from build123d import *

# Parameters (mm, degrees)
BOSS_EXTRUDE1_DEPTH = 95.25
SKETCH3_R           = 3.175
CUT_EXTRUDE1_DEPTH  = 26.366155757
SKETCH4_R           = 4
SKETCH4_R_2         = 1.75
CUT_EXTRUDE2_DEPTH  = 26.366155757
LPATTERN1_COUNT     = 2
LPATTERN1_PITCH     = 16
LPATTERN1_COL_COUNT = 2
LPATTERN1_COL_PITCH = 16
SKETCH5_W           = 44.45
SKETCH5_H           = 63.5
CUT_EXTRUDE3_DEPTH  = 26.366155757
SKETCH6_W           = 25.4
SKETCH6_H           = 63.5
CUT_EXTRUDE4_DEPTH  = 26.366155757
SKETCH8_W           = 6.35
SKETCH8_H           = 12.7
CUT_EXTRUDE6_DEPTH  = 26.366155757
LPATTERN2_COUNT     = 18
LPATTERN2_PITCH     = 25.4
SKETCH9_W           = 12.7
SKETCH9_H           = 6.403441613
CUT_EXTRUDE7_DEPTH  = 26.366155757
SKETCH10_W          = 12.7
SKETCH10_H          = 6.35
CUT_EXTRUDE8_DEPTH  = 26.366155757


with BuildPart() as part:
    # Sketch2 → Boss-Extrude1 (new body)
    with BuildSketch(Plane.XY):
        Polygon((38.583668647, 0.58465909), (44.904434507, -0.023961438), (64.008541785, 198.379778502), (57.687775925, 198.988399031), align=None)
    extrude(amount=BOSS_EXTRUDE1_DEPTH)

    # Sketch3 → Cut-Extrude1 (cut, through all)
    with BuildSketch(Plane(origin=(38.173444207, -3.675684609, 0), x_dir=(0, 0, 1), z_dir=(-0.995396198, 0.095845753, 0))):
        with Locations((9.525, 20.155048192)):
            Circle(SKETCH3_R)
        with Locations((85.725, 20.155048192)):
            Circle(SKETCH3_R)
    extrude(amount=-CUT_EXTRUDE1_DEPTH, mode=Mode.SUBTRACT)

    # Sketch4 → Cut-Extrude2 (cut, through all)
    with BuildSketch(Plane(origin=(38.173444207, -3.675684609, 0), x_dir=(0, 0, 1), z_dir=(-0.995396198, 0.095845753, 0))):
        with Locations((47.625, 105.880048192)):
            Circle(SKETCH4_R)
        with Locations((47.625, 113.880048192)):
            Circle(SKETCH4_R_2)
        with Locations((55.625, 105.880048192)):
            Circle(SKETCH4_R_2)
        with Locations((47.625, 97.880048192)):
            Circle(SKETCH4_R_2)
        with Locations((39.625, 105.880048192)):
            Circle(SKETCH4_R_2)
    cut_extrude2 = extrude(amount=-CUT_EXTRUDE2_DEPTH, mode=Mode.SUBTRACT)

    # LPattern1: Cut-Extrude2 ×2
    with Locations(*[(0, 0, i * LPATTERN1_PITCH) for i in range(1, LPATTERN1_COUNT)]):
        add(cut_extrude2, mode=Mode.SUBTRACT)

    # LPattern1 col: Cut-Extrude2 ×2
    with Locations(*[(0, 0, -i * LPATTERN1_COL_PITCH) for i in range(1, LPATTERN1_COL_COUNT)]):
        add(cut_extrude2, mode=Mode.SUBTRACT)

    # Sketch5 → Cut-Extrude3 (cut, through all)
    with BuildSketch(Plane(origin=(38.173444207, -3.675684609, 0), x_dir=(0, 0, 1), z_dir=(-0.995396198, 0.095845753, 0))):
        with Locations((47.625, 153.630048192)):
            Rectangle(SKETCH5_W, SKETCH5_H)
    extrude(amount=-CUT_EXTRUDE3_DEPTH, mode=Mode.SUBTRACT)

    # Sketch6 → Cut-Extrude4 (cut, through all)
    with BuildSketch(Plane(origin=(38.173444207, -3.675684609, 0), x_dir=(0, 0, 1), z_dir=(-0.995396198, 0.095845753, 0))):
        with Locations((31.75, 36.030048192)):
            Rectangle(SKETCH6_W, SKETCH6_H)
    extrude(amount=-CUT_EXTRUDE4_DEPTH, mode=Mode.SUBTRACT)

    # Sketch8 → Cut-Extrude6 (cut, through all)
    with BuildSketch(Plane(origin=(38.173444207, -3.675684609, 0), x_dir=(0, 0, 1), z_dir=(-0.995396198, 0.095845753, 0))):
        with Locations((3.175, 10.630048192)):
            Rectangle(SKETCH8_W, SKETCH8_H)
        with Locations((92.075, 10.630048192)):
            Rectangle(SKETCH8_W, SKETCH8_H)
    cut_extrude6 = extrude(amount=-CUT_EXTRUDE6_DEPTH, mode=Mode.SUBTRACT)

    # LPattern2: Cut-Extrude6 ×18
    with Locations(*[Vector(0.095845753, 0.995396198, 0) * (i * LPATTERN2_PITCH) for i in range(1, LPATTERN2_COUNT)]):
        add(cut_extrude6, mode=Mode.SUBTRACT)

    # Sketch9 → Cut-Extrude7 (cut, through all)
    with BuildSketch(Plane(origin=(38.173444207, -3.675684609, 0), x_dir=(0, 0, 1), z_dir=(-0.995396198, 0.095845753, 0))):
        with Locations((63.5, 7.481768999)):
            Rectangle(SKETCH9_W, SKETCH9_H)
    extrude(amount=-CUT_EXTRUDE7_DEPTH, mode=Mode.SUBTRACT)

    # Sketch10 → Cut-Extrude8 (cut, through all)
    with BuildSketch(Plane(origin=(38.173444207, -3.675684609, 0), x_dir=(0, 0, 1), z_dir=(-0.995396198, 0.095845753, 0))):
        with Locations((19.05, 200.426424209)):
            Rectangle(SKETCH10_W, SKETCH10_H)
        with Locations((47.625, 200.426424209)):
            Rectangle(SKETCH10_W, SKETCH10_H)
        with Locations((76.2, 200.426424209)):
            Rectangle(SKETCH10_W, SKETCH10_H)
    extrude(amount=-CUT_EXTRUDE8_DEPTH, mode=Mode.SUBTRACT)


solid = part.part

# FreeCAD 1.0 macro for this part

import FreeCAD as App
import Part
import Sketcher
Q = App.Units.Quantity


def add_polygon(sketch, points):
    """Adds a closed chain of lines whose ends are joined by coincident constraints."""
    first, n = sketch.GeometryCount, len(points)
    for a, b in zip(points, points[1:] + points[:1]):
        sketch.addGeometry(Part.LineSegment(App.Vector(*a, 0), App.Vector(*b, 0)), False)
    for i in range(n):
        sketch.addConstraint(Sketcher.Constraint("Coincident", first + i, 2, first + (i + 1) % n, 1))

doc = App.newDocument("Part")
body = doc.addObject("PartDesign::Body", "Body")

# Sketch on XY plane
sketch1 = doc.addObject("Sketcher::SketchObject", "Sketch")
body.addObject(sketch1)
sketch1.AttachmentSupport = (doc.XY_Plane, [""])
sketch1.MapMode = "FlatFace"
add_polygon(sketch1, [(38.583669, 0.584659), (44.904435, -0.023961), (64.008542, 198.379779), (57.687776, 198.988399)])  # lines 0-3
sketch1.addConstraint([
    Sketcher.Constraint("Perpendicular", 0, 1),
    Sketcher.Constraint("Perpendicular", 1, 2),
    Sketcher.Constraint("Perpendicular", 2, 3),
    Sketcher.Constraint("Angle", 0, Q("-5.5 deg")),
    Sketcher.Constraint("Distance", 0, Q("0.25 in")),
    Sketcher.Constraint("DistanceY", -1, 1, 2, 2, Q("198.988399 mm")),
    Sketcher.Constraint("DistanceY", 0, 2, -1, 1, Q("0.023961 mm")),
    Sketcher.Constraint("DistanceX", -1, 1, 1, 2, Q("64.008542 mm")),
])
pad1 = doc.addObject("PartDesign::Pad", "Pad")
body.addObject(pad1)
pad1.Profile = sketch1
pad1.Length = Q("3.75 in")

# Sketch on an angled plane
sketch2 = doc.addObject("Sketcher::SketchObject", "Sketch001")
body.addObject(sketch2)
sketch2.Placement = App.Placement(App.Vector(38.173444, -3.675685, 0), App.Rotation(App.Vector(0, 0, 1), App.Vector(0.095845753, 0.995396198, 0), App.Vector(-0.995396198, 0.095845753, 0), "ZXY"))
sketch2.addGeometry([
    Part.Circle(App.Vector(9.525, 20.155048, 0), App.Vector(0, 0, 1), 3.175),
    Part.Circle(App.Vector(85.725, 20.155048, 0), App.Vector(0, 0, 1), 3.175),
], False)
sketch2.addConstraint([
    Sketcher.Constraint("Equal", 0, 1),
    Sketcher.Constraint("Horizontal", 0, 3, 1, 3),
    Sketcher.Constraint("Diameter", 0, Q("0.25 in")),
    Sketcher.Constraint("DistanceX", 0, 3, 1, 3, Q("3 in")),
    Sketcher.Constraint("DistanceX", -1, 1, 0, 3, Q("0.375 in")),
    Sketcher.Constraint("DistanceY", -1, 1, 0, 3, Q("20.155048 mm")),
])
pocket1 = doc.addObject("PartDesign::Pocket", "Pocket")
body.addObject(pocket1)
pocket1.Profile = sketch2
pocket1.Type = "ThroughAll"

# Sketch on an angled plane
sketch3 = doc.addObject("Sketcher::SketchObject", "Sketch002")
body.addObject(sketch3)
sketch3.Placement = App.Placement(App.Vector(38.173444, -3.675685, 0), App.Rotation(App.Vector(0, 0, 1), App.Vector(0.095845753, 0.995396198, 0), App.Vector(-0.995396198, 0.095845753, 0), "ZXY"))
sketch3.addGeometry([
    Part.Circle(App.Vector(47.625, 105.880048, 0), App.Vector(0, 0, 1), 4),  # 0
    Part.Circle(App.Vector(47.625, 113.880048, 0), App.Vector(0, 0, 1), 1.75),  # 1
    Part.Circle(App.Vector(55.625, 105.880048, 0), App.Vector(0, 0, 1), 1.75),  # 2
    Part.Circle(App.Vector(47.625, 97.880048, 0), App.Vector(0, 0, 1), 1.75),  # 3
    Part.Circle(App.Vector(39.625, 105.880048, 0), App.Vector(0, 0, 1), 1.75),  # 4
], False)
sketch3.addConstraint([
    Sketcher.Constraint("Equal", 1, 2),
    Sketcher.Constraint("Equal", 2, 3),
    Sketcher.Constraint("Equal", 3, 4),
    Sketcher.Constraint("Horizontal", 0, 3, 2, 3),
    Sketcher.Constraint("Horizontal", 2, 3, 4, 3),
    Sketcher.Constraint("Vertical", 0, 3, 1, 3),
    Sketcher.Constraint("Vertical", 1, 3, 3, 3),
    Sketcher.Constraint("Diameter", 0, Q("8 mm")),
    Sketcher.Constraint("Diameter", 1, Q("3.5 mm")),
    Sketcher.Constraint("DistanceX", -1, 1, 0, 3, Q("1.875 in")),
    Sketcher.Constraint("DistanceX", -1, 1, 2, 3, Q("55.625 mm")),
    Sketcher.Constraint("DistanceX", -1, 1, 4, 3, Q("39.625 mm")),
    Sketcher.Constraint("DistanceY", 0, 3, 1, 3, Q("8 mm")),
    Sketcher.Constraint("DistanceY", 3, 3, 0, 3, Q("8 mm")),
    Sketcher.Constraint("DistanceY", -1, 1, 0, 3, Q("105.880048 mm")),
])
pocket2 = doc.addObject("PartDesign::Pocket", "Pocket001")
body.addObject(pocket2)
pocket2.Profile = sketch3
pocket2.Type = "ThroughAll"
doc.recompute()

linearpattern = doc.addObject("PartDesign::LinearPattern", "LinearPattern")
body.addObject(linearpattern)
linearpattern.Originals = [pocket2]
linearpattern.Direction = (doc.Z_Axis, [""])
linearpattern.Mode = "offset"
linearpattern.Offset = 16
linearpattern.Occurrences = 2
body.Tip = linearpattern
doc.recompute()

linearpattern2 = doc.addObject("PartDesign::LinearPattern", "LinearPattern001")
body.addObject(linearpattern2)
linearpattern2.Originals = [pocket2]
linearpattern2.Direction = (doc.Z_Axis, [""])
linearpattern2.Mode = "offset"
linearpattern2.Offset = 16
linearpattern2.Occurrences = 2
linearpattern2.Reversed = True
body.Tip = linearpattern2

# Sketch on an angled plane
sketch4 = doc.addObject("Sketcher::SketchObject", "Sketch003")
body.addObject(sketch4)
sketch4.Placement = App.Placement(App.Vector(38.173444, -3.675685, 0), App.Rotation(App.Vector(0, 0, 1), App.Vector(0.095845753, 0.995396198, 0), App.Vector(-0.995396198, 0.095845753, 0), "ZXY"))
add_polygon(sketch4, [(25.4, 185.380048), (25.4, 121.880048), (69.85, 121.880048), (69.85, 185.380048)])  # lines 0-3
sketch4.addConstraint([
    Sketcher.Constraint("Vertical", 0),
    Sketcher.Constraint("Horizontal", 1),
    Sketcher.Constraint("Vertical", 2),
    Sketcher.Constraint("Horizontal", 3),
    Sketcher.Constraint("DistanceY", 0, 2, 0, 1, Q("2.5 in")),
    Sketcher.Constraint("DistanceX", -1, 1, 0, 2, Q("1 in")),
    Sketcher.Constraint("DistanceX", 1, 1, 1, 2, Q("1.75 in")),
    Sketcher.Constraint("DistanceY", -1, 1, 0, 2, Q("121.880048 mm")),
])
pocket3 = doc.addObject("PartDesign::Pocket", "Pocket002")
body.addObject(pocket3)
pocket3.Profile = sketch4
pocket3.Type = "ThroughAll"

# Sketch on an angled plane
sketch5 = doc.addObject("Sketcher::SketchObject", "Sketch004")
body.addObject(sketch5)
sketch5.Placement = App.Placement(App.Vector(38.173444, -3.675685, 0), App.Rotation(App.Vector(0, 0, 1), App.Vector(0.095845753, 0.995396198, 0), App.Vector(-0.995396198, 0.095845753, 0), "ZXY"))
add_polygon(sketch5, [(19.05, 67.780048), (19.05, 4.280048), (44.45, 4.280048), (44.45, 67.780048)])  # lines 0-3
sketch5.addConstraint([
    Sketcher.Constraint("Vertical", 0),
    Sketcher.Constraint("Horizontal", 1),
    Sketcher.Constraint("Vertical", 2),
    Sketcher.Constraint("Horizontal", 3),
    Sketcher.Constraint("DistanceX", 1, 1, 1, 2, Q("1 in")),
    Sketcher.Constraint("DistanceY", 0, 2, 0, 1, Q("2.5 in")),
    Sketcher.Constraint("DistanceX", -1, 1, 0, 2, Q("0.75 in")),
    Sketcher.Constraint("DistanceY", -1, 1, 0, 2, Q("4.280048 mm")),
])
pocket4 = doc.addObject("PartDesign::Pocket", "Pocket003")
body.addObject(pocket4)
pocket4.Profile = sketch5
pocket4.Type = "ThroughAll"

# Sketch on an angled plane
sketch6 = doc.addObject("Sketcher::SketchObject", "Sketch005")
body.addObject(sketch6)
sketch6.Placement = App.Placement(App.Vector(38.173444, -3.675685, 0), App.Rotation(App.Vector(0, 0, 1), App.Vector(0.095845753, 0.995396198, 0), App.Vector(-0.995396198, 0.095845753, 0), "ZXY"))
add_polygon(sketch6, [(0, 16.980048), (0, 4.280048), (6.35, 4.280048), (6.35, 16.980048)])  # lines 0-3
add_polygon(sketch6, [(88.9, 16.980048), (88.9, 4.280048), (95.25, 4.280048), (95.25, 16.980048)])  # lines 4-7
sketch6.addConstraint([
    Sketcher.Constraint("Vertical", 0),
    Sketcher.Constraint("Horizontal", 1),
    Sketcher.Constraint("Vertical", 2),
    Sketcher.Constraint("Horizontal", 3),
    Sketcher.Constraint("Vertical", 4),
    Sketcher.Constraint("Horizontal", 5),
    Sketcher.Constraint("Vertical", 6),
    Sketcher.Constraint("Horizontal", 7),
    Sketcher.Constraint("PointOnObject", 0, 2, -2),
    Sketcher.Constraint("Horizontal", 1, 2, 4, 2),
    Sketcher.Constraint("Horizontal", 3, 2, 6, 2),
    Sketcher.Constraint("Equal", 3, 5),
    Sketcher.Constraint("DistanceY", 0, 2, 0, 1, Q("0.5 in")),
    Sketcher.Constraint("DistanceX", 1, 1, 1, 2, Q("0.25 in")),
    Sketcher.Constraint("DistanceX", -1, 1, 4, 2, Q("3.5 in")),
    Sketcher.Constraint("DistanceY", -1, 1, 0, 2, Q("4.280048 mm")),
])
pocket5 = doc.addObject("PartDesign::Pocket", "Pocket004")
body.addObject(pocket5)
pocket5.Profile = sketch6
pocket5.Type = "ThroughAll"
doc.recompute()

datumline = doc.addObject("PartDesign::Line", "DatumLine")
body.addObject(datumline)
datumline.Placement = App.Placement(App.Vector(0, 0, 0), App.Rotation(App.Vector(0, 0, 1), App.Vector(0.095845753, 0.995396198, 0)))
linearpattern3 = doc.addObject("PartDesign::LinearPattern", "LinearPattern002")
body.addObject(linearpattern3)
linearpattern3.Originals = [pocket5]
linearpattern3.Direction = (datumline, [""])
linearpattern3.Mode = "offset"
linearpattern3.Offset = Q("1 in")
linearpattern3.Occurrences = 18
body.Tip = linearpattern3

# Sketch on an angled plane
sketch7 = doc.addObject("Sketcher::SketchObject", "Sketch006")
body.addObject(sketch7)
sketch7.Placement = App.Placement(App.Vector(38.173444, -3.675685, 0), App.Rotation(App.Vector(0, 0, 1), App.Vector(0.095845753, 0.995396198, 0), App.Vector(-0.995396198, 0.095845753, 0), "ZXY"))
add_polygon(sketch7, [(57.15, 10.68349), (57.15, 4.280048), (69.85, 4.280048), (69.85, 10.68349)])  # lines 0-3
sketch7.addConstraint([
    Sketcher.Constraint("Vertical", 0),
    Sketcher.Constraint("Horizontal", 1),
    Sketcher.Constraint("Vertical", 2),
    Sketcher.Constraint("Horizontal", 3),
    Sketcher.Constraint("DistanceX", 1, 1, 1, 2, Q("0.5 in")),
    Sketcher.Constraint("DistanceX", -1, 1, 0, 2, Q("2.25 in")),
    Sketcher.Constraint("DistanceY", 0, 2, 0, 1, Q("6.403442 mm")),
    Sketcher.Constraint("DistanceY", -1, 1, 0, 2, Q("4.280048 mm")),
])
pocket6 = doc.addObject("PartDesign::Pocket", "Pocket005")
body.addObject(pocket6)
pocket6.Profile = sketch7
pocket6.Type = "ThroughAll"

# Sketch on an angled plane
sketch8 = doc.addObject("Sketcher::SketchObject", "Sketch007")
body.addObject(sketch8)
sketch8.Placement = App.Placement(App.Vector(38.173444, -3.675685, 0), App.Rotation(App.Vector(0, 0, 1), App.Vector(0.095845753, 0.995396198, 0), App.Vector(-0.995396198, 0.095845753, 0), "ZXY"))
add_polygon(sketch8, [(12.7, 203.601424), (12.7, 197.251424), (25.4, 197.251424), (25.4, 203.601424)])  # lines 0-3
add_polygon(sketch8, [(41.275, 203.601424), (41.275, 197.251424), (53.975, 197.251424), (53.975, 203.601424)])  # lines 4-7
add_polygon(sketch8, [(69.85, 203.601424), (69.85, 197.251424), (82.55, 197.251424), (82.55, 203.601424)])  # lines 8-11
sketch8.addConstraint([
    Sketcher.Constraint("Vertical", 0),
    Sketcher.Constraint("Horizontal", 1),
    Sketcher.Constraint("Vertical", 2),
    Sketcher.Constraint("Horizontal", 3),
    Sketcher.Constraint("Vertical", 4),
    Sketcher.Constraint("Horizontal", 5),
    Sketcher.Constraint("Vertical", 6),
    Sketcher.Constraint("Horizontal", 7),
    Sketcher.Constraint("Vertical", 8),
    Sketcher.Constraint("Horizontal", 9),
    Sketcher.Constraint("Vertical", 10),
    Sketcher.Constraint("Horizontal", 11),
    Sketcher.Constraint("Horizontal", 1, 2, 4, 2),
    Sketcher.Constraint("Horizontal", 3, 2, 6, 2),
    Sketcher.Constraint("Horizontal", 5, 2, 8, 2),
    Sketcher.Constraint("Horizontal", 7, 2, 10, 2),
    Sketcher.Constraint("Equal", 3, 5),
    Sketcher.Constraint("Equal", 7, 9),
    Sketcher.Constraint("DistanceX", 1, 1, 1, 2, Q("0.5 in")),
    Sketcher.Constraint("DistanceX", -1, 1, 1, 2, Q("1 in")),
    Sketcher.Constraint("DistanceY", 0, 2, 0, 1, Q("0.25 in")),
    Sketcher.Constraint("DistanceX", -1, 1, 8, 2, Q("2.75 in")),
    Sketcher.Constraint("DistanceX", -1, 1, 4, 2, Q("1.625 in")),
    Sketcher.Constraint("DistanceY", -1, 1, 0, 2, Q("197.251424 mm")),
])
pocket7 = doc.addObject("PartDesign::Pocket", "Pocket006")
body.addObject(pocket7)
pocket7.Profile = sketch8
pocket7.Type = "ThroughAll"

doc.recompute()
